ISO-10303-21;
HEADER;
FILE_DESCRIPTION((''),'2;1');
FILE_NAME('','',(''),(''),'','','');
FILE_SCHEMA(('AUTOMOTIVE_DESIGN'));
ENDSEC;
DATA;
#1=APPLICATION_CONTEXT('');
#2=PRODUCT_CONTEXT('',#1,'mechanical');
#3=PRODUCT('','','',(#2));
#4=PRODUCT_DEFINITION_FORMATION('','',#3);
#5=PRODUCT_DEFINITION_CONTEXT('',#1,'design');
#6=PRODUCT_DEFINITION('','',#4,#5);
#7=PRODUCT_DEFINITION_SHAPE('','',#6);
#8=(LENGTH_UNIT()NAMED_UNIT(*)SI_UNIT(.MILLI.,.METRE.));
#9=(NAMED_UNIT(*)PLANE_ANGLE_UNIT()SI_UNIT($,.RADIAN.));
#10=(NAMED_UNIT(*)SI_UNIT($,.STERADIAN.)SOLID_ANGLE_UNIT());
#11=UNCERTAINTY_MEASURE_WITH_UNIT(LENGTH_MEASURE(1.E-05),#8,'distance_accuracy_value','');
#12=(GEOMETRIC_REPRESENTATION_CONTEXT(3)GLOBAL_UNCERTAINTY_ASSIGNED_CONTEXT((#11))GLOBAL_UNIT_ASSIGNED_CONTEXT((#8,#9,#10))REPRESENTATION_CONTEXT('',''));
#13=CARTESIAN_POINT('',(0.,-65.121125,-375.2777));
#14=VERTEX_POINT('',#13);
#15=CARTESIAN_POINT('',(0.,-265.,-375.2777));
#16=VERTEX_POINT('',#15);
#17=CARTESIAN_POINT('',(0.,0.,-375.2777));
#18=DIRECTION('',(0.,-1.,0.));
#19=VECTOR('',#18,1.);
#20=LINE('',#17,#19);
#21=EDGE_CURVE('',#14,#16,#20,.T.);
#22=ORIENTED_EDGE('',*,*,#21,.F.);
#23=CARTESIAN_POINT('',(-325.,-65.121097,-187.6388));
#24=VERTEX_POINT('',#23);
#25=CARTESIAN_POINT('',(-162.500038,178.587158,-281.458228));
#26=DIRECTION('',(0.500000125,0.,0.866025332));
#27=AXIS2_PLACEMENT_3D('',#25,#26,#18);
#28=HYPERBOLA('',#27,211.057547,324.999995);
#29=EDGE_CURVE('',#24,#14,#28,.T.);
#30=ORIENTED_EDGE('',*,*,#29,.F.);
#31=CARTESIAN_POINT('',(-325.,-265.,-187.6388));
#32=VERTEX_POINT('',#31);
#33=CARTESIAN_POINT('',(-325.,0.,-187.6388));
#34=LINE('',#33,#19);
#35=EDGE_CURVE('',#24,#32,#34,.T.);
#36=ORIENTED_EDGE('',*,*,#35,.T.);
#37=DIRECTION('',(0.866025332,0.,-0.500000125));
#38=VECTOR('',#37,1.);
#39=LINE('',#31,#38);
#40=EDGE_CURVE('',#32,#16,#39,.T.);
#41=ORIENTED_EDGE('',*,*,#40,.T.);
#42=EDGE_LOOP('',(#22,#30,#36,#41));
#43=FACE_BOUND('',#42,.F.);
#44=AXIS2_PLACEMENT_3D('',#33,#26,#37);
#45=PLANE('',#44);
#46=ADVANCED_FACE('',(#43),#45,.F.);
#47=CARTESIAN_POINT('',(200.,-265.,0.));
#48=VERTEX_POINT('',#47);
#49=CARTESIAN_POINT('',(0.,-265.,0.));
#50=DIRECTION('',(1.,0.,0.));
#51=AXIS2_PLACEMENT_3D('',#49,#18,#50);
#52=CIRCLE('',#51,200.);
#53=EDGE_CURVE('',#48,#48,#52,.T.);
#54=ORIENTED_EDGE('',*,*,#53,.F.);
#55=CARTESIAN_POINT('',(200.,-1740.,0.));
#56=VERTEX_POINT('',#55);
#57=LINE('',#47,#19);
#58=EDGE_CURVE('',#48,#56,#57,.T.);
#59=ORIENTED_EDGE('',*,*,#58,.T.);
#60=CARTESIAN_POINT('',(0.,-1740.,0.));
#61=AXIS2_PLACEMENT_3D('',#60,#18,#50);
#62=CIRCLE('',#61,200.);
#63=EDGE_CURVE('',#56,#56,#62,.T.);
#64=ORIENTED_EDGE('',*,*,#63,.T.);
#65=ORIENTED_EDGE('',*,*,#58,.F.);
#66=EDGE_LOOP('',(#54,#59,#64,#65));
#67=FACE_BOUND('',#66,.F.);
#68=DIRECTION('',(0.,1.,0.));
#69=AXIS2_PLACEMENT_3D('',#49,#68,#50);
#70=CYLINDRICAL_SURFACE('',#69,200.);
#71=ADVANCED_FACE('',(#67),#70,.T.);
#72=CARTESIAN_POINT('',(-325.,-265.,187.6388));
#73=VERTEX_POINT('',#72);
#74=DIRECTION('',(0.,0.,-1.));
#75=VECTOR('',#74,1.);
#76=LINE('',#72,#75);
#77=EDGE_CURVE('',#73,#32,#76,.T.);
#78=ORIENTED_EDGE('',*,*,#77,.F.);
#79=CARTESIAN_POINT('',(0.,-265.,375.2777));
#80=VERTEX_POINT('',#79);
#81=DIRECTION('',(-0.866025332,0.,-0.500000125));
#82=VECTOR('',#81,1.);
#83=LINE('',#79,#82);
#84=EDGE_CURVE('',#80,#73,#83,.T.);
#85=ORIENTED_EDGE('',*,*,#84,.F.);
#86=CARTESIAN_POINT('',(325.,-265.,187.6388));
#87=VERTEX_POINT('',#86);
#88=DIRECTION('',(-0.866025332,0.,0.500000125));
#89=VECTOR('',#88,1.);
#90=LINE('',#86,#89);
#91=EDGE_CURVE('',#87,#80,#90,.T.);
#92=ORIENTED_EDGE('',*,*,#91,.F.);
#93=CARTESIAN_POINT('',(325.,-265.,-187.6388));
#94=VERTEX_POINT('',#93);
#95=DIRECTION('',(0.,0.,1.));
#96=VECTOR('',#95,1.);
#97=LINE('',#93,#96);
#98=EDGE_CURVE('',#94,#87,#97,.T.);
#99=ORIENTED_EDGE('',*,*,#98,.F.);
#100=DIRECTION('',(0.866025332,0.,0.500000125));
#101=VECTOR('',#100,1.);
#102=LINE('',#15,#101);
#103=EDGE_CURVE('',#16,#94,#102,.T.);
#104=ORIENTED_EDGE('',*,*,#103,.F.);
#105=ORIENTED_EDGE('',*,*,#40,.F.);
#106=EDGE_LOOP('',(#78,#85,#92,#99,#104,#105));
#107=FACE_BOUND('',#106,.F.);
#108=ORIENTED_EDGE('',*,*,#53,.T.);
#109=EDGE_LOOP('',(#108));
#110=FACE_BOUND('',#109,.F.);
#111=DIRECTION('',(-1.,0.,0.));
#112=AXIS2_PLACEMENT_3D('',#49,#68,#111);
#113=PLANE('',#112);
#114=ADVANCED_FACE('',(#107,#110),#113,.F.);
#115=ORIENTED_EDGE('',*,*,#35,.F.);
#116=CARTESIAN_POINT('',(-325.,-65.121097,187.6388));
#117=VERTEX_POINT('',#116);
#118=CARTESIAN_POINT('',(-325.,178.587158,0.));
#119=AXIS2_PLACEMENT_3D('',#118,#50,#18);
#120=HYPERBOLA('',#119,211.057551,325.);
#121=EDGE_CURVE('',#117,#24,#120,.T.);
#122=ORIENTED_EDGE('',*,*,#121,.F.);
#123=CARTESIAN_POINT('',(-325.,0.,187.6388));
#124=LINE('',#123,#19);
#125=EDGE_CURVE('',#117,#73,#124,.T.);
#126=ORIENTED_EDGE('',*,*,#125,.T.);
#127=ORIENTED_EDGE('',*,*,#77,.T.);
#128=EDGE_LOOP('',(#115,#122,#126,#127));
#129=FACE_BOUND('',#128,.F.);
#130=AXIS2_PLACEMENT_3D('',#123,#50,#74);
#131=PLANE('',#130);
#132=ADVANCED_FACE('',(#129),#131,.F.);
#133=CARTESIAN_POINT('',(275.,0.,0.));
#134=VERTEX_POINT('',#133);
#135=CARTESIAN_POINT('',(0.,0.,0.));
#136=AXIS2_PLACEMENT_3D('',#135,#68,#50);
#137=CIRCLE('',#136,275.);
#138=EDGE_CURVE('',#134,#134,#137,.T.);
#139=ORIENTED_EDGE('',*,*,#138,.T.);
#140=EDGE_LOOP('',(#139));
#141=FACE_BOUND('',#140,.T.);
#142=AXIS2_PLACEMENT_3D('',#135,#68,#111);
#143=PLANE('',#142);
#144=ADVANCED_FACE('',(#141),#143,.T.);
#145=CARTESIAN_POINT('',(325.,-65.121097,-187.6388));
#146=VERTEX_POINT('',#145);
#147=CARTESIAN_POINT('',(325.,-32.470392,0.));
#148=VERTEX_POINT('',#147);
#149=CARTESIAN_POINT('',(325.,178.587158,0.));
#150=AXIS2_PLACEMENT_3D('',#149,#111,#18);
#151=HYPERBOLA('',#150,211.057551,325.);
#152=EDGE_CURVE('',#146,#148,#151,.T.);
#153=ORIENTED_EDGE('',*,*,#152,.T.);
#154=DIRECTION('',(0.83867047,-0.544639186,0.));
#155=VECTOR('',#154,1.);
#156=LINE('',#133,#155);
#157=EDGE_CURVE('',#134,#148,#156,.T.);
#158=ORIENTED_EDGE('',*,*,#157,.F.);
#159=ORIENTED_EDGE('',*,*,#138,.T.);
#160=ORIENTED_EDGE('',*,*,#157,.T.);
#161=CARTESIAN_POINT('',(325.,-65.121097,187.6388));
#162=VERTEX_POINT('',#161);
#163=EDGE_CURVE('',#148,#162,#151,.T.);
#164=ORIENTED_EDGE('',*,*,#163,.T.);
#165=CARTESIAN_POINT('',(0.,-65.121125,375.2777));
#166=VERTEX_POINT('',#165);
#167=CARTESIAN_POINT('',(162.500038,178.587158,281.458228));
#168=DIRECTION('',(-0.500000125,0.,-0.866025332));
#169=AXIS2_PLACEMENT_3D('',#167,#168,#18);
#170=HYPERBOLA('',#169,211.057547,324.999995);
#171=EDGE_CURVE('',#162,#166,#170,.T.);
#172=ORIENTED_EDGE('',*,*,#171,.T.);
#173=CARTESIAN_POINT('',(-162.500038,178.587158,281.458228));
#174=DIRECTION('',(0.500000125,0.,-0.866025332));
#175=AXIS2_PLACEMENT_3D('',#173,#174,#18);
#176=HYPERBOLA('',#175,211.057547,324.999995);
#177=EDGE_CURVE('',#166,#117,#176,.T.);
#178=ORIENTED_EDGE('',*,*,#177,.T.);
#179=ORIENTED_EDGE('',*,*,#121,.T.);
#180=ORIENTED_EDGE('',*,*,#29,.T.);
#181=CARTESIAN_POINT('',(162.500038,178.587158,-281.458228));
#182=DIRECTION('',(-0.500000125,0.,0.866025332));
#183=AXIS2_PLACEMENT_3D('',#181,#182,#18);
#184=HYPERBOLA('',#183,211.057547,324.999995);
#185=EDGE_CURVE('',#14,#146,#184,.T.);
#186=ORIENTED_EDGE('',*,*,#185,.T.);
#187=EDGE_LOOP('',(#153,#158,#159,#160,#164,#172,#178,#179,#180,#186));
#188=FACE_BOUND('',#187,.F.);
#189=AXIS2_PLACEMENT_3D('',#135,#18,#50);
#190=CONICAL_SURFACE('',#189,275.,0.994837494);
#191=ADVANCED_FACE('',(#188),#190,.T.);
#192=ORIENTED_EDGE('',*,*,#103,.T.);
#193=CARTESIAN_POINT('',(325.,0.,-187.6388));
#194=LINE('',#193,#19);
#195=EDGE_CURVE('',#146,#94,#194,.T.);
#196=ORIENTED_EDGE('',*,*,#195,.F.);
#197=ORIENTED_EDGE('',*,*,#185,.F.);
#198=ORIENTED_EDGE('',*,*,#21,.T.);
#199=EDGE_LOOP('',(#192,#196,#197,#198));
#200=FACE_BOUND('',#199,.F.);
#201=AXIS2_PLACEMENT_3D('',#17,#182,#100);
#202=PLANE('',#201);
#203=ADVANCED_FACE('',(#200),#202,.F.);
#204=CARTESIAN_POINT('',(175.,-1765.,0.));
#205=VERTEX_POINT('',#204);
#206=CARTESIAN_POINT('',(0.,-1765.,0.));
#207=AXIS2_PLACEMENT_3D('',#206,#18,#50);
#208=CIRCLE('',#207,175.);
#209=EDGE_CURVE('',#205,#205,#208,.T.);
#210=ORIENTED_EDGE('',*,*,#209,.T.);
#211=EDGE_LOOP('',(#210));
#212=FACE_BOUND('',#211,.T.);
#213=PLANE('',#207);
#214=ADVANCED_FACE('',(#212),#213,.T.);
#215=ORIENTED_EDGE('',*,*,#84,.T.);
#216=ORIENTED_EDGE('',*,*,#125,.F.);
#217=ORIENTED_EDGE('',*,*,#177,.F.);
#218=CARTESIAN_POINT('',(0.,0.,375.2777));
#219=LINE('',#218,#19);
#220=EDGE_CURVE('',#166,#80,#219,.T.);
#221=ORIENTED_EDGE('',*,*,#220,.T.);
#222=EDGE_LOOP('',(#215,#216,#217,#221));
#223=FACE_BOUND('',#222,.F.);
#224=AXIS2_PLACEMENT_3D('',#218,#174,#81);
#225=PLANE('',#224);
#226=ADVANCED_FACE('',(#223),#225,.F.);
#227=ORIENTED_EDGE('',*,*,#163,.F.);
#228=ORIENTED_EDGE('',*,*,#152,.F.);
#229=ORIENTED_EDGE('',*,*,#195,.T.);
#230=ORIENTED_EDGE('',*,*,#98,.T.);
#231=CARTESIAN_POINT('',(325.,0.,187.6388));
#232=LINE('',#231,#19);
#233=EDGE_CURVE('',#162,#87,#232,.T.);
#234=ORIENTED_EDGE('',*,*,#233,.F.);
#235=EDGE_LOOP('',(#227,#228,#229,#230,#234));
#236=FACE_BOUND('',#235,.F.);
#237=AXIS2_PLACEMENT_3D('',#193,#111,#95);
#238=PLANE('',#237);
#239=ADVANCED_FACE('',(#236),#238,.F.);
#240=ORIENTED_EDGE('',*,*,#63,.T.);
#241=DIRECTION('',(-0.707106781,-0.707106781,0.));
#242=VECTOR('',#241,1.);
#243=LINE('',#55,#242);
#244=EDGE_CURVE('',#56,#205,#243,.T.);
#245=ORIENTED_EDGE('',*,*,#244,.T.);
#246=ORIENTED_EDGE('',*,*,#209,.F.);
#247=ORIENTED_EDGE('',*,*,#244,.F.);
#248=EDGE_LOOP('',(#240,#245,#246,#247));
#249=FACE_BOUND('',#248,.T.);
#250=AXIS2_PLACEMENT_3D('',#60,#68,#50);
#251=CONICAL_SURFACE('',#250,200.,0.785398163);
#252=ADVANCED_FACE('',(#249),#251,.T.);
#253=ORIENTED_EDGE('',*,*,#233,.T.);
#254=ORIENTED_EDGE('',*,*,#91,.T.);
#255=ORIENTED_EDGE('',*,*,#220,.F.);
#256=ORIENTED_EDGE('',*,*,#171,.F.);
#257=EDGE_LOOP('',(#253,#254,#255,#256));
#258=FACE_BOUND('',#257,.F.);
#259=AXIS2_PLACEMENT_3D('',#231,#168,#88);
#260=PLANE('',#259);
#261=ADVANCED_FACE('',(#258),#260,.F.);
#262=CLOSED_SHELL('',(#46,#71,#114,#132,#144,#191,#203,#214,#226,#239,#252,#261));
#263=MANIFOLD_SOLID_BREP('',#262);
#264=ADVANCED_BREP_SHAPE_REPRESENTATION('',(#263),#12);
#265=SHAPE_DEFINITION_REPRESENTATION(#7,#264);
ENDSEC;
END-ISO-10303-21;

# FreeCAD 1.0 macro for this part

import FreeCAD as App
import Part
import Sketcher

V = App.Vector
Q = App.Units.Quantity


def edges_at(feature, points):
    """Names of the edges that pass closest to the given points."""
    edges = feature.Shape.Edges
    near = lambda p: min(range(len(edges)), key=lambda i: edges[i].distToShape(Part.Vertex(*p))[0])
    return sorted({f"Edge{near(p) + 1}" for p in points})


def add_polygon(sketch, points):
    """Adds a closed chain of lines whose ends are joined by coincident constraints."""
    first, n = sketch.GeometryCount, len(points)
    for a, b in zip(points, points[1:] + points[:1]):
        sketch.addGeometry(Part.LineSegment(App.Vector(*a, 0), App.Vector(*b, 0)), False)
    for i in range(n):
        sketch.addConstraint(Sketcher.Constraint("Coincident", first + i, 2, first + (i + 1) % n, 1))

doc = App.newDocument("Part")
body = doc.addObject("PartDesign::Body", "Body")

sketch1 = body.newObject("Sketcher::SketchObject", "Sketch")
sketch1.AttachmentSupport = (doc.getObject("XZ_Plane"), [""])
sketch1.MapMode = "FlatFace"
add_polygon(sketch1, [(0, -375), (-325, -188), (-325, 188), (0, 375), (325, 188), (325, -188)])
sketch1.addConstraint([
    Sketcher.Constraint("Vertical", 1),
    Sketcher.Constraint("Vertical", 4),
    Sketcher.Constraint("Symmetric", 0, 2, 3, 2, -1, 1),
    Sketcher.Constraint("Symmetric", 2, 2, 5, 2, -1, 1),
    Sketcher.Constraint("PointOnObject", 2, 2, -2),
    Sketcher.Constraint("Parallel", 2, 5),
    Sketcher.Constraint("Horizontal", 1, 2, 3, 2),
    Sketcher.Constraint("Angle", 0, Q("150 deg")),
    Sketcher.Constraint("DistanceX", 0, 2, -1, 1, 325.0),
    Sketcher.Constraint("DistanceY", 1, 1, 1, 2, 375.2776),
])
pad1 = body.newObject("PartDesign::Pad", "Pad")
pad1.Profile = sketch1
pad1.Length = 265

sketch2 = body.newObject("Sketcher::SketchObject", "Sketch001")
sketch2.AttachmentSupport = (doc.getObject("XZ_Plane"), [""])
sketch2.MapMode = "FlatFace"
sketch2.AttachmentOffset = App.Placement(V(0, 0, 265), App.Rotation())
sketch2.addGeometry(Part.Circle(V(0, 0, 0), V(0, 0, 1), 200), False)
sketch2.addConstraint([
    Sketcher.Constraint("Coincident", 0, 3, -1, 1),
    Sketcher.Constraint("Diameter", 0, 400.0),
])
pad2 = body.newObject("PartDesign::Pad", "Pad001")
pad2.Profile = sketch2
pad2.Length = 1500
doc.recompute()

chamfer = body.newObject("PartDesign::Chamfer", "Chamfer")
chamfer.Base = (pad2, edges_at(pad2, [(-200, -1765, 0)]))
chamfer.Size = 25

sketch3 = body.newObject("Sketcher::SketchObject", "Sketch002")
sketch3.AttachmentSupport = (doc.getObject("XY_Plane"), [""])
sketch3.MapMode = "FlatFace"
add_polygon(sketch3, [(498, 0), (275, 0), (498, -145)])
sketch3.addConstraint([
    Sketcher.Constraint("Horizontal", 0),
    Sketcher.Constraint("Vertical", 2),
    Sketcher.Constraint("PointOnObject", 0, 2, -1),
    Sketcher.Constraint("Angle", 1, Q("-33 deg")),
    Sketcher.Constraint("DistanceX", -1, 1, 0, 2, 275.0),
    Sketcher.Constraint("DistanceX", 0, 2, 0, 1, 222.8484),
])
groove = body.newObject("PartDesign::Groove", "Groove")
groove.Profile = sketch3
groove.ReferenceAxis = (sketch3, ["V_Axis"])
groove.Angle = 360

doc.recompute()
